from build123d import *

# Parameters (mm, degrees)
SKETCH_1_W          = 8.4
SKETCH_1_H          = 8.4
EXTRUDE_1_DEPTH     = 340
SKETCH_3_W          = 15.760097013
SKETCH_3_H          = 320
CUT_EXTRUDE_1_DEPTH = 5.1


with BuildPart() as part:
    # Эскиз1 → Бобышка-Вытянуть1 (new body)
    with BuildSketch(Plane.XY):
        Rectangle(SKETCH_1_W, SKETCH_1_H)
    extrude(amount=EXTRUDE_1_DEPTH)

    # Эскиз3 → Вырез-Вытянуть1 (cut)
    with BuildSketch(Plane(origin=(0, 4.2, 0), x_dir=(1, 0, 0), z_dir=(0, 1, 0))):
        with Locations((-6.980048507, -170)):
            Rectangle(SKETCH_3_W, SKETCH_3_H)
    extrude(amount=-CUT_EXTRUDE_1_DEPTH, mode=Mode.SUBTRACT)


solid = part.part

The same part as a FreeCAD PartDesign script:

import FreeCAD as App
import Part
import Sketcher
Q = App.Units.Quantity

doc = App.newDocument("Part")
params = doc.addObject("Spreadsheet::Sheet", "Params")
for row, (alias, value) in enumerate([
    ("sketch1_width", "8.4 mm"),
    ("pad1_length", "340 mm"),
    ("sketch2_height", "320 mm"),
    ("pocket1_length", "5.1 mm"),
], start=1):
    params.set(f"A{row}", alias)
    params.set(f"B{row}", "=" + value)
    params.setAlias(f"B{row}", alias)

body = doc.addObject("PartDesign::Body", "Body")

sketch1 = doc.addObject("Sketcher::SketchObject", "Sketch")
body.addObject(sketch1)
sketch1.AttachmentSupport = (doc.XY_Plane, [""])
sketch1.MapMode = "FlatFace"
sketch1.addGeometry(Part.LineSegment(App.Vector(-4.2, 4.2, 0), App.Vector(-4.2, -4.2, 0)), False)
sketch1.addGeometry(Part.LineSegment(App.Vector(-4.2, -4.2, 0), App.Vector(4.2, -4.2, 0)), False)
sketch1.addGeometry(Part.LineSegment(App.Vector(4.2, -4.2, 0), App.Vector(4.2, 4.2, 0)), False)
sketch1.addGeometry(Part.LineSegment(App.Vector(4.2, 4.2, 0), App.Vector(-4.2, 4.2, 0)), False)
sketch1.addConstraint(Sketcher.Constraint("Coincident", 0, 2, 1, 1))
sketch1.addConstraint(Sketcher.Constraint("Coincident", 1, 2, 2, 1))
sketch1.addConstraint(Sketcher.Constraint("Coincident", 2, 2, 3, 1))
sketch1.addConstraint(Sketcher.Constraint("Coincident", 3, 2, 0, 1))
sketch1.addConstraint(Sketcher.Constraint("Vertical", 0))
sketch1.addConstraint(Sketcher.Constraint("Horizontal", 1))
sketch1.addConstraint(Sketcher.Constraint("Vertical", 2))
sketch1.addConstraint(Sketcher.Constraint("Horizontal", 3))
sketch1.addConstraint(Sketcher.Constraint("Symmetric", 0, 2, 2, 2, -1, 1))
sketch1.addConstraint(Sketcher.Constraint("Equal", 3, 0))
sketch1.addConstraint(Sketcher.Constraint("DistanceX", 1, 1, 1, 2, Q("8.4 mm")))
sketch1.setExpression("Constraints[10]", "Params.sketch1_width")
pad1 = doc.addObject("PartDesign::Pad", "Pad")
body.addObject(pad1)
pad1.Profile = sketch1
pad1.setExpression("Length", "Params.pad1_length")

sketch2 = doc.addObject("Sketcher::SketchObject", "Sketch001")
body.addObject(sketch2)
sketch2.AttachmentSupport = (doc.XZ_Plane, [""])
sketch2.MapMode = "FlatFace"
sketch2.AttachmentOffset = App.Placement(App.Vector(0, 0, -4.2), App.Rotation())
sketch2.addGeometry(Part.LineSegment(App.Vector(-14.860097, 10, 0), App.Vector(-14.860097, 330, 0)), False)
sketch2.addGeometry(Part.LineSegment(App.Vector(-14.860097, 330, 0), App.Vector(0.9, 330, 0)), False)
sketch2.addGeometry(Part.LineSegment(App.Vector(0.9, 330, 0), App.Vector(0.9, 10, 0)), False)
sketch2.addGeometry(Part.LineSegment(App.Vector(0.9, 10, 0), App.Vector(-14.860097, 10, 0)), False)
sketch2.addConstraint(Sketcher.Constraint("Coincident", 0, 2, 1, 1))
sketch2.addConstraint(Sketcher.Constraint("Coincident", 1, 2, 2, 1))
sketch2.addConstraint(Sketcher.Constraint("Coincident", 2, 2, 3, 1))
sketch2.addConstraint(Sketcher.Constraint("Coincident", 3, 2, 0, 1))
sketch2.addConstraint(Sketcher.Constraint("Vertical", 0))
sketch2.addConstraint(Sketcher.Constraint("Horizontal", 1))
sketch2.addConstraint(Sketcher.Constraint("Vertical", 2))
sketch2.addConstraint(Sketcher.Constraint("Horizontal", 3))
sketch2.addConstraint(Sketcher.Constraint("DistanceY", 0, 1, 0, 2, Q("320 mm")))
sketch2.addConstraint(Sketcher.Constraint("DistanceY", -1, 1, 0, 2, Q("330 mm")))
sketch2.addConstraint(Sketcher.Constraint("DistanceX", -1, 1, 1, 2, Q("0.9 mm")))
sketch2.addConstraint(Sketcher.Constraint("DistanceX", 1, 1, 1, 2, Q("15.760097 mm")))
sketch2.setExpression("Constraints[8]", "Params.sketch2_height")
pocket1 = doc.addObject("PartDesign::Pocket", "Pocket")
body.addObject(pocket1)
pocket1.Profile = sketch2
pocket1.setExpression("Length", "Params.pocket1_length")
pocket1.Reversed = True

doc.recompute()
